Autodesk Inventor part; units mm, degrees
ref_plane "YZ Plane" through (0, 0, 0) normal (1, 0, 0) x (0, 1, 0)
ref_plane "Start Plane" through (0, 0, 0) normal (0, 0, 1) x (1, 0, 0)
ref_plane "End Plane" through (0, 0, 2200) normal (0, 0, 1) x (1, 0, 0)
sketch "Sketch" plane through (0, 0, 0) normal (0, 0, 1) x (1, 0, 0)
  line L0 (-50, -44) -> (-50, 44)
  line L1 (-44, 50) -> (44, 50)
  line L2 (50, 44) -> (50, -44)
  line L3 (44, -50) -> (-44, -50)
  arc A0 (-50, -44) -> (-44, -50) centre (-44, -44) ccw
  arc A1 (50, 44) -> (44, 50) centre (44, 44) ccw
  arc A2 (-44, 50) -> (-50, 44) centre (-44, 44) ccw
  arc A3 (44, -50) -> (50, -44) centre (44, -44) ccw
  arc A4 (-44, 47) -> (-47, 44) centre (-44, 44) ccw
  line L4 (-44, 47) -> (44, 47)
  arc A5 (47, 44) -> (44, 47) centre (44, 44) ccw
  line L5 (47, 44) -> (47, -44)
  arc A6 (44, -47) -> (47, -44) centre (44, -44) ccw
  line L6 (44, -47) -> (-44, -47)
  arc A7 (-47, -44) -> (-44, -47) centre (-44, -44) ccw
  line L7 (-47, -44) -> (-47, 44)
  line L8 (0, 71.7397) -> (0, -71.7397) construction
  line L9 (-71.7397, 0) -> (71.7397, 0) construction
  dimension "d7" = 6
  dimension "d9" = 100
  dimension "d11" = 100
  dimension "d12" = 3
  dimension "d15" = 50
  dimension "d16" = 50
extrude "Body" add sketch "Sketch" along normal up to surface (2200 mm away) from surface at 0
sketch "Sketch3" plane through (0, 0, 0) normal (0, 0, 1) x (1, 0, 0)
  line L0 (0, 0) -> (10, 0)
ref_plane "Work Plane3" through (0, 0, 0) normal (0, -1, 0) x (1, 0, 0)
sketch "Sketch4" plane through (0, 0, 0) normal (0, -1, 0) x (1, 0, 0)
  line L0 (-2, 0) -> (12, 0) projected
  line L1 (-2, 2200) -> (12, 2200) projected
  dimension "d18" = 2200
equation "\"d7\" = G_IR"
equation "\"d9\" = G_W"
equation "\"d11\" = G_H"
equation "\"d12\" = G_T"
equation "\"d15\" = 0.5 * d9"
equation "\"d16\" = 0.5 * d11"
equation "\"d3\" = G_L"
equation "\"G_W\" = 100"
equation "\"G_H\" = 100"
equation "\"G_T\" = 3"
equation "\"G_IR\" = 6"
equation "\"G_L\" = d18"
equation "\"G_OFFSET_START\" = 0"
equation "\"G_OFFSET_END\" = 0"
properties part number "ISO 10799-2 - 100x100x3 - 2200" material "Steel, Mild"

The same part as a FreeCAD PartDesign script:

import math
import FreeCAD as App
import Part
import Sketcher
from FreeCAD import Vector

doc = App.newDocument("Part")
params = doc.addObject("Spreadsheet::Sheet", "Params")
for row, (alias, value) in enumerate([
    ("sketch1_radius", "6 mm"),
    ("sketch1_radius2", "3 mm"),
    ("pad1_length", "2200 mm"),
], start=1):
    params.set(f"A{row}", alias)
    params.set(f"B{row}", "=" + value)
    params.setAlias(f"B{row}", alias)

body = doc.addObject("PartDesign::Body", "Body")

sketch1 = doc.addObject("Sketcher::SketchObject", "Sketch")
body.addObject(sketch1)
sketch1.AttachmentSupport = (doc.XY_Plane, [""])
sketch1.MapMode = "FlatFace"
sketch1.addGeometry([
    Part.LineSegment(Vector(-50, 44, 0), Vector(-50, -44, 0)),
    Part.ArcOfCircle(Part.Circle(Vector(-44, -44, 0), Vector(0, 0, 1), 6), math.radians(180), math.radians(270)),
    Part.LineSegment(Vector(-44, -50, 0), Vector(44, -50, 0)),
    Part.ArcOfCircle(Part.Circle(Vector(44, -44, 0), Vector(0, 0, 1), 6), math.radians(-90), math.radians(0)),
    Part.LineSegment(Vector(50, -44, 0), Vector(50, 44, 0)),
    Part.ArcOfCircle(Part.Circle(Vector(44, 44, 0), Vector(0, 0, 1), 6), math.radians(0), math.radians(90)),
    Part.LineSegment(Vector(44, 50, 0), Vector(-44, 50, 0)),
    Part.ArcOfCircle(Part.Circle(Vector(-44, 44, 0), Vector(0, 0, 1), 6), math.radians(90), math.radians(180)),
    Part.ArcOfCircle(Part.Circle(Vector(-44, 44, 0), Vector(0, 0, 1), 3), math.radians(90), math.radians(180)),
    Part.LineSegment(Vector(-44, 47, 0), Vector(44, 47, 0)),
    Part.ArcOfCircle(Part.Circle(Vector(44, 44, 0), Vector(0, 0, 1), 3), math.radians(0), math.radians(90)),
    Part.LineSegment(Vector(47, 44, 0), Vector(47, -44, 0)),
    Part.ArcOfCircle(Part.Circle(Vector(44, -44, 0), Vector(0, 0, 1), 3), math.radians(-90), math.radians(0)),
    Part.LineSegment(Vector(44, -47, 0), Vector(-44, -47, 0)),
    Part.ArcOfCircle(Part.Circle(Vector(-44, -44, 0), Vector(0, 0, 1), 3), math.radians(180), math.radians(270)),
    Part.LineSegment(Vector(-47, -44, 0), Vector(-47, 44, 0)),
], False)
sketch1.addConstraint([
    Sketcher.Constraint("Tangent", 0, 2, 1, 1),
    Sketcher.Constraint("Tangent", 1, 2, 2, 1),
    Sketcher.Constraint("Tangent", 2, 2, 3, 1),
    Sketcher.Constraint("Tangent", 3, 2, 4, 1),
    Sketcher.Constraint("Tangent", 4, 2, 5, 1),
    Sketcher.Constraint("Tangent", 5, 2, 6, 1),
    Sketcher.Constraint("Tangent", 6, 2, 7, 1),
    Sketcher.Constraint("Tangent", 7, 2, 0, 1),
    Sketcher.Constraint("Tangent", 8, 1, 9, 1),
    Sketcher.Constraint("Tangent", 9, 2, 10, 2),
    Sketcher.Constraint("Tangent", 10, 1, 11, 1),
    Sketcher.Constraint("Tangent", 11, 2, 12, 2),
    Sketcher.Constraint("Tangent", 12, 1, 13, 1),
    Sketcher.Constraint("Tangent", 13, 2, 14, 2),
    Sketcher.Constraint("Tangent", 14, 1, 15, 1),
    Sketcher.Constraint("Tangent", 15, 2, 8, 2),
    Sketcher.Constraint("Vertical", 0),
    Sketcher.Constraint("Horizontal", 2),
    Sketcher.Constraint("Vertical", 4),
    Sketcher.Constraint("Horizontal", 6),
    Sketcher.Constraint("Horizontal", 9),
    Sketcher.Constraint("Vertical", 11),
    Sketcher.Constraint("Horizontal", 13),
    Sketcher.Constraint("Vertical", 15),
    Sketcher.Constraint("Coincident", 8, 3, 7, 3),
    Sketcher.Constraint("Coincident", 10, 3, 5, 3),
    Sketcher.Constraint("Coincident", 12, 3, 3, 3),
    Sketcher.Constraint("Equal", 1, 3),
    Sketcher.Constraint("Equal", 3, 5),
    Sketcher.Constraint("Equal", 5, 7),
    Sketcher.Constraint("Equal", 12, 14),
    Sketcher.Constraint("Symmetric", 1, 3, 5, 3, -1, 1),
    Sketcher.Constraint("Equal", 13, 0),
    Sketcher.Constraint("Radius", 1, 6.0),
    Sketcher.Constraint("Radius", 8, 3.0),
    Sketcher.Constraint("DistanceX", 0, 2, -1, 1, 50.0),
])
sketch1.setExpression("Constraints[33]", "Params.sketch1_radius")
sketch1.setExpression("Constraints[34]", "Params.sketch1_radius2")
pad1 = doc.addObject("PartDesign::Pad", "Pad")
body.addObject(pad1)
pad1.Profile = sketch1
pad1.setExpression("Length", "Params.pad1_length")

doc.recompute()
